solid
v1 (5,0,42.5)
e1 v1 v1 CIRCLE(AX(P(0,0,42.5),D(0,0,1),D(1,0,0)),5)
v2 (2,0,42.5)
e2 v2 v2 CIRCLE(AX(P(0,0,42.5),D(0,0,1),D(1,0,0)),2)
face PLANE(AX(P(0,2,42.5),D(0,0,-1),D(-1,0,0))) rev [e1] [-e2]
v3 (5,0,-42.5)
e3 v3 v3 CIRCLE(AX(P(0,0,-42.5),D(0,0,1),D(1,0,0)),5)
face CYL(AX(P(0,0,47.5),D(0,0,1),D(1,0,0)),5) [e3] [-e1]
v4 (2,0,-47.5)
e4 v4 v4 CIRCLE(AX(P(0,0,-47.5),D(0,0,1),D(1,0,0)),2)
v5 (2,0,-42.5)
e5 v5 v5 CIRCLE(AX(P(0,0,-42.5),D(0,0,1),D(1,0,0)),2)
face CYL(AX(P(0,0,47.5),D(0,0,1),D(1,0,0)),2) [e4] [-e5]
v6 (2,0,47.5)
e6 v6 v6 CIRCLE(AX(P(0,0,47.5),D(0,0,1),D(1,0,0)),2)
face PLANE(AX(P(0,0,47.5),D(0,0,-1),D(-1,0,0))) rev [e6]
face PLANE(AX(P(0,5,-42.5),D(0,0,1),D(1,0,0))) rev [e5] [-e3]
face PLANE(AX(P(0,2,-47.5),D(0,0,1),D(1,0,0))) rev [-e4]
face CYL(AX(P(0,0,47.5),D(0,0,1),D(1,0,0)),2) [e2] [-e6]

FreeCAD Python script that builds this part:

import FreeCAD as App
import Part
import Sketcher
Q = App.Units.Quantity

doc = App.newDocument("Part")
body = doc.addObject("PartDesign::Body", "Body")

sketch1 = doc.addObject("Sketcher::SketchObject", "Sketch")
body.addObject(sketch1)
sketch1.AttachmentSupport = (doc.YZ_Plane, [""])
sketch1.MapMode = "FlatFace"
sketch1.addGeometry(Part.LineSegment(App.Vector(0, 47.5, 0), App.Vector(0, -47.5, 0)), False)
sketch1.addGeometry(Part.LineSegment(App.Vector(0, -47.5, 0), App.Vector(2, -47.5, 0)), False)
sketch1.addGeometry(Part.LineSegment(App.Vector(2, -47.5, 0), App.Vector(2, -42.5, 0)), False)
sketch1.addGeometry(Part.LineSegment(App.Vector(2, -42.5, 0), App.Vector(5, -42.5, 0)), False)
sketch1.addGeometry(Part.LineSegment(App.Vector(5, -42.5, 0), App.Vector(5, 42.5, 0)), False)
sketch1.addGeometry(Part.LineSegment(App.Vector(5, 42.5, 0), App.Vector(2, 42.5, 0)), False)
sketch1.addGeometry(Part.LineSegment(App.Vector(2, 42.5, 0), App.Vector(2, 47.5, 0)), False)
sketch1.addGeometry(Part.LineSegment(App.Vector(2, 47.5, 0), App.Vector(0, 47.5, 0)), False)
sketch1.addConstraint(Sketcher.Constraint("Coincident", 0, 2, 1, 1))
sketch1.addConstraint(Sketcher.Constraint("Coincident", 1, 2, 2, 1))
sketch1.addConstraint(Sketcher.Constraint("Coincident", 2, 2, 3, 1))
sketch1.addConstraint(Sketcher.Constraint("Coincident", 3, 2, 4, 1))
sketch1.addConstraint(Sketcher.Constraint("Coincident", 4, 2, 5, 1))
sketch1.addConstraint(Sketcher.Constraint("Coincident", 5, 2, 6, 1))
sketch1.addConstraint(Sketcher.Constraint("Coincident", 6, 2, 7, 1))
sketch1.addConstraint(Sketcher.Constraint("Coincident", 7, 2, 0, 1))
sketch1.addConstraint(Sketcher.Constraint("Vertical", 0))
sketch1.addConstraint(Sketcher.Constraint("Horizontal", 1))
sketch1.addConstraint(Sketcher.Constraint("Vertical", 2))
sketch1.addConstraint(Sketcher.Constraint("Horizontal", 3))
sketch1.addConstraint(Sketcher.Constraint("Vertical", 4))
sketch1.addConstraint(Sketcher.Constraint("Horizontal", 5))
sketch1.addConstraint(Sketcher.Constraint("Vertical", 6))
sketch1.addConstraint(Sketcher.Constraint("Horizontal", 7))
sketch1.addConstraint(Sketcher.Constraint("Symmetric", 0, 2, 7, 2, -1, 1))
sketch1.addConstraint(Sketcher.Constraint("Symmetric", 2, 2, 5, 2, -1))
sketch1.addConstraint(Sketcher.Constraint("DistanceX", 1, 1, 1, 2, Q("2 mm")))
sketch1.addConstraint(Sketcher.Constraint("DistanceX", 3, 1, 3, 2, Q("3 mm")))
sketch1.addConstraint(Sketcher.Constraint("DistanceY", 0, 2, 0, 1, Q("95 mm")))
sketch1.addConstraint(Sketcher.Constraint("DistanceY", 2, 1, 2, 2, Q("5 mm")))
revolution = doc.addObject("PartDesign::Revolution", "Revolution")
body.addObject(revolution)
revolution.Profile = sketch1
revolution.ReferenceAxis = (sketch1, ["V_Axis"])
revolution.Angle = 360

doc.recompute()
